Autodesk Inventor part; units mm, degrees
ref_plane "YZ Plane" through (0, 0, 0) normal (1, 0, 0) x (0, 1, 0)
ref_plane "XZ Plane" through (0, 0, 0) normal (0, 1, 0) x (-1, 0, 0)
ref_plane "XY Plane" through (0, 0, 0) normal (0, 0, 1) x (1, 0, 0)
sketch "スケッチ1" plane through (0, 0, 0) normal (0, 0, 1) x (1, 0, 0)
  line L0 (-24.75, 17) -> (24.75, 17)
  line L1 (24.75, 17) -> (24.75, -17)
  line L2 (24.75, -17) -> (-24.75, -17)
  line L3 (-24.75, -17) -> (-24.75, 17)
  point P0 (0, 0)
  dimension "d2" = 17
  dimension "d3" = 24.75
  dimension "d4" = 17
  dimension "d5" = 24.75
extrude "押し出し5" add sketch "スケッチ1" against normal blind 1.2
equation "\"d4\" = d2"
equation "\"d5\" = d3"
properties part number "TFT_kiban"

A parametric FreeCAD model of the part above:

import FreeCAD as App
import Part
import Sketcher
from FreeCAD import Vector
Q = App.Units.Quantity


def add_polygon(sketch, points):
    """Adds a closed chain of lines whose ends are joined by coincident constraints."""
    first, n = sketch.GeometryCount, len(points)
    for a, b in zip(points, points[1:] + points[:1]):
        sketch.addGeometry(Part.LineSegment(App.Vector(*a, 0), App.Vector(*b, 0)), False)
    for i in range(n):
        sketch.addConstraint(Sketcher.Constraint("Coincident", first + i, 2, first + (i + 1) % n, 1))

doc = App.newDocument("Part")
body = doc.addObject("PartDesign::Body", "Body")

# Sketch on XY plane
sketch1 = body.newObject("Sketcher::SketchObject", "Sketch")
sketch1.AttachmentSupport = (doc.getObject("XY_Plane"), [""])
sketch1.MapMode = "FlatFace"
add_polygon(sketch1, [(25, 17), (-25, 17), (-25, -17), (25, -17)])  # lines 0-3
sketch1.addConstraint(Sketcher.Constraint("Horizontal", 0))
sketch1.addConstraint(Sketcher.Constraint("Vertical", 1))
sketch1.addConstraint(Sketcher.Constraint("Horizontal", 2))
sketch1.addConstraint(Sketcher.Constraint("Vertical", 3))
sketch1.addConstraint(Sketcher.Constraint("Symmetric", 0, 2, 2, 2, -1, 1))
sketch1.addConstraint(Sketcher.Constraint("DistanceY", -1, 1, 0, 2, Q("17 mm")))
sketch1.addConstraint(Sketcher.Constraint("DistanceX", 0, 2, -1, 1, Q("24.75 mm")))
pad1 = body.newObject("PartDesign::Pad", "Pad")
pad1.Profile = sketch1
pad1.Length = 1.2
pad1.Reversed = True

doc.recompute()
